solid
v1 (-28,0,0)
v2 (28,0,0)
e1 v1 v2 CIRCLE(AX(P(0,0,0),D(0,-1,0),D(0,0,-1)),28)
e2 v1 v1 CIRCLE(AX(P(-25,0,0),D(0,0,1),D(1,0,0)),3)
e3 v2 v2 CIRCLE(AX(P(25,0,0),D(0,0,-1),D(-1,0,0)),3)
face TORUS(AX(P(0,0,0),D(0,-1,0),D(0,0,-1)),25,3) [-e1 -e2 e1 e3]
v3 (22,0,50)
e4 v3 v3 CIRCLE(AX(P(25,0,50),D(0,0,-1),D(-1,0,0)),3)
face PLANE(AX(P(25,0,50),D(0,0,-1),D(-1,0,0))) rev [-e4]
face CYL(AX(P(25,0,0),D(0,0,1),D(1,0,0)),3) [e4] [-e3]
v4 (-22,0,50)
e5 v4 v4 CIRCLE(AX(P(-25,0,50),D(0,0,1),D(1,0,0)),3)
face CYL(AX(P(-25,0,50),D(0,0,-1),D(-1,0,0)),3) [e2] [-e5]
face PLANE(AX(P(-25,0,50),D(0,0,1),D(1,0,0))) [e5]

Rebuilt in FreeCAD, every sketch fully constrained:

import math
import FreeCAD as App
import Part
import Sketcher

V = App.Vector

doc = App.newDocument("Part")
body = doc.addObject("PartDesign::Body", "Body")

sketch1 = body.newObject("Sketcher::SketchObject", "Sketch")
sketch1.AttachmentSupport = (doc.getObject("XY_Plane"), [""])
sketch1.MapMode = "FlatFace"
sketch1.AttachmentOffset = App.Placement(V(0, 0, 50), App.Rotation())
sketch1.addGeometry(Part.Circle(V(-25, 0, 0), V(0, 0, 1), 3), False)
sketch1.addConstraint([
    Sketcher.Constraint("PointOnObject", 0, 3, -1),
    Sketcher.Constraint("Diameter", 0, 6.0),
    Sketcher.Constraint("DistanceX", 0, 3, -1, 1, 25.0),
])

sketch2 = body.newObject("Sketcher::SketchObject", "Sketch001")
sketch2.AttachmentSupport = (doc.getObject("XZ_Plane"), [""])
sketch2.MapMode = "FlatFace"
sketch2.addGeometry([
    Part.LineSegment(V(-25, 50, 0), V(-25, 0, 0)),
    Part.ArcOfCircle(Part.Circle(V(0, 0, 0), V(0, 0, 1), 25), math.radians(180), math.radians(360)),
    Part.LineSegment(V(25, 0, 0), V(25, 50, 0)),
], False)
sketch2.addConstraint([
    Sketcher.Constraint("Tangent", 0, 2, 1, 1),
    Sketcher.Constraint("Tangent", 1, 2, 2, 1),
    Sketcher.Constraint("Vertical", 0),
    Sketcher.Constraint("Vertical", 2),
    Sketcher.Constraint("Coincident", 1, 3, -1, 1),
    Sketcher.Constraint("Horizontal", 0, 1, 2, 2),
    Sketcher.Constraint("Radius", 1, 25.0),
    Sketcher.Constraint("DistanceY", 0, 2, 0, 1, 50.0),
])
doc.recompute()

additivepipe = body.newObject("PartDesign::AdditivePipe", "AdditivePipe")
additivepipe.Profile = sketch1
additivepipe.Spine = (sketch2, ["Edge1", "Edge2", "Edge3"])

doc.recompute()
